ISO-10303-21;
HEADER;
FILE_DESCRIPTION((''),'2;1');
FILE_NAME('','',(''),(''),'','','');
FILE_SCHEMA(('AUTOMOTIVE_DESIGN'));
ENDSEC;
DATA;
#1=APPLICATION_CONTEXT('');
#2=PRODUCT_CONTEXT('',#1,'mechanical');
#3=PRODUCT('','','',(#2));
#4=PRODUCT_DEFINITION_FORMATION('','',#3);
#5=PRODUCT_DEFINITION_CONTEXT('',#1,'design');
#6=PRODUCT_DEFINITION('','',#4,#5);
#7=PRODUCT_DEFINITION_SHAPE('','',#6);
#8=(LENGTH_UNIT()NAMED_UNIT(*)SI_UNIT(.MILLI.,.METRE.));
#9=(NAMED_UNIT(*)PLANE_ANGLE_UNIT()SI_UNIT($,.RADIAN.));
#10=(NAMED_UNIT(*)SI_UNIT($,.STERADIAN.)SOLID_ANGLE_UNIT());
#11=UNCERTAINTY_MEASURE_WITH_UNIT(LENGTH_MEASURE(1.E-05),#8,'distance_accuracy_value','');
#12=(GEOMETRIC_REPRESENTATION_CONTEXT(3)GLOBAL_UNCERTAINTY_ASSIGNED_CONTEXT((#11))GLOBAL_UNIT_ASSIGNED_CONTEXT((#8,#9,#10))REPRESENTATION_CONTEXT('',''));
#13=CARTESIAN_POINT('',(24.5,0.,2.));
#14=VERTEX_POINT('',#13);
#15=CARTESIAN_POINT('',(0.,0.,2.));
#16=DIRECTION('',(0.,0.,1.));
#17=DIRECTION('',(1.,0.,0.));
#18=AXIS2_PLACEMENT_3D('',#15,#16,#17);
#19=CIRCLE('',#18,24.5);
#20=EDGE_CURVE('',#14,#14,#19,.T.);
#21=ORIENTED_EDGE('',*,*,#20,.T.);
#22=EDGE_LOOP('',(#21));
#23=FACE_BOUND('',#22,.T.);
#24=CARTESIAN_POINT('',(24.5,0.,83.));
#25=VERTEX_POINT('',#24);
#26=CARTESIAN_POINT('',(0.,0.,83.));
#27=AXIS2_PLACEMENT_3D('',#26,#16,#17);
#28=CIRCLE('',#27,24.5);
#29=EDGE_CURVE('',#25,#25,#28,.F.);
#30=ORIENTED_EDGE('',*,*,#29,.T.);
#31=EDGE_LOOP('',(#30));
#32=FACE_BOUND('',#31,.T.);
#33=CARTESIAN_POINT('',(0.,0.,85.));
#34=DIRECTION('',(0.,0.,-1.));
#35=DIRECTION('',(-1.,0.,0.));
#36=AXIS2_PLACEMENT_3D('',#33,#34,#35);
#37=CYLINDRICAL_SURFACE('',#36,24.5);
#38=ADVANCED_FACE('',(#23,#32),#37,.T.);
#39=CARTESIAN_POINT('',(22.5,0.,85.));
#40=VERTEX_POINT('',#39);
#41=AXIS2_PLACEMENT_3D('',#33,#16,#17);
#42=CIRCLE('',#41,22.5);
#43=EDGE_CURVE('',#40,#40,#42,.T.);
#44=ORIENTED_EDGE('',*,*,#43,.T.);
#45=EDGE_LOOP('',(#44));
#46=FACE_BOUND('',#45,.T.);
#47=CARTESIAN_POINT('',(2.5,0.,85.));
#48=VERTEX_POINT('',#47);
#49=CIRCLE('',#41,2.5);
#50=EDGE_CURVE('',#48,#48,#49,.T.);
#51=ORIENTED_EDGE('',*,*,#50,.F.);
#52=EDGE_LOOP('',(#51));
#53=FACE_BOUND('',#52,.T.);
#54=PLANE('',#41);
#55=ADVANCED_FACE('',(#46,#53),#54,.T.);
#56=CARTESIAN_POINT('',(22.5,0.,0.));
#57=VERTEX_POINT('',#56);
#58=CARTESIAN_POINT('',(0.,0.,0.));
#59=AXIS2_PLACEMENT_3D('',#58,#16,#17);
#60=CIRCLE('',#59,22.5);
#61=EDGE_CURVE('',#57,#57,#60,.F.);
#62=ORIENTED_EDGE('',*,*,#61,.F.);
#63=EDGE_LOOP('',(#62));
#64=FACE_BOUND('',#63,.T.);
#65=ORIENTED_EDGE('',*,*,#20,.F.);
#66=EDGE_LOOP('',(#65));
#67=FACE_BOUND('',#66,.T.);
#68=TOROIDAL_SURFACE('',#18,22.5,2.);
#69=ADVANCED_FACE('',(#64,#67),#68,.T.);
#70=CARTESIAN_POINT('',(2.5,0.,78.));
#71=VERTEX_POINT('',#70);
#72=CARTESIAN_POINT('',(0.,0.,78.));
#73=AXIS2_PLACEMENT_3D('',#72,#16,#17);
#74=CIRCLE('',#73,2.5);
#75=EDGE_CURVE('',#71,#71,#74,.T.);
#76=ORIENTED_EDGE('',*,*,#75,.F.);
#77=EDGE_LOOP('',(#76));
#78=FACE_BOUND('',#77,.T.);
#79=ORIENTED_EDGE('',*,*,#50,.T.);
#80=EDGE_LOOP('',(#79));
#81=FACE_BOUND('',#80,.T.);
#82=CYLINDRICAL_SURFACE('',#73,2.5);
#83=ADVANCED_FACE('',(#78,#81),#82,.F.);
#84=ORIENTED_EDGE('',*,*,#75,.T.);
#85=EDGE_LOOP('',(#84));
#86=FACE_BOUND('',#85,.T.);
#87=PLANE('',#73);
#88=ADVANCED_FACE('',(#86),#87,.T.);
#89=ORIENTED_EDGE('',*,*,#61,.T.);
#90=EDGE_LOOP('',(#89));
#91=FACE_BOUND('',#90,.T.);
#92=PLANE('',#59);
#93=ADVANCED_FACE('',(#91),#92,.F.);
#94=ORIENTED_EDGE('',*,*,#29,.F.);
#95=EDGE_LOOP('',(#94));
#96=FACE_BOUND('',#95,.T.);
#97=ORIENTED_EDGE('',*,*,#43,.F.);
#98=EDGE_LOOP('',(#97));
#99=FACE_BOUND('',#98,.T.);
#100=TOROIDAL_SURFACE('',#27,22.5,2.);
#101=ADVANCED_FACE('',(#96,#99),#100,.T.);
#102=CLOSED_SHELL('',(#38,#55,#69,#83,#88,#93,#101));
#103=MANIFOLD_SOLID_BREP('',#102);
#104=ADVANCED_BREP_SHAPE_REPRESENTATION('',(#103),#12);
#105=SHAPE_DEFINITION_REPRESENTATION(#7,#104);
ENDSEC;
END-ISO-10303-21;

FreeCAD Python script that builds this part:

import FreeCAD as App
import Part
import Sketcher
from FreeCAD import Vector
Q = App.Units.Quantity


def edges_at(feature, points):
    """Names of the edges that pass closest to the given points."""
    edges = feature.Shape.Edges
    near = lambda p: min(range(len(edges)), key=lambda i: edges[i].distToShape(Part.Vertex(*p))[0])
    return sorted({f"Edge{near(p) + 1}" for p in points})

doc = App.newDocument("Part")
body = doc.addObject("PartDesign::Body", "Body")

# Sketch on XY plane
sketch1 = body.newObject("Sketcher::SketchObject", "Sketch")
sketch1.AttachmentSupport = (doc.getObject("XY_Plane"), [""])
sketch1.MapMode = "FlatFace"
sketch1.addGeometry(Part.Circle(Vector(0, 0, 0), Vector(0, 0, 1), 24.5), False)
sketch1.addConstraint([
    Sketcher.Constraint("Coincident", 0, 3, -1, 1),
    Sketcher.Constraint("Diameter", 0, Q("49 mm")),
])
pad1 = body.newObject("PartDesign::Pad", "Pad")
pad1.Profile = sketch1
pad1.Length = 85
doc.recompute()

fillet = body.newObject("PartDesign::Fillet", "Fillet")
fillet.Base = (pad1, edges_at(pad1, [(-24.5, 0, 0), (-24.5, 0, 85)]))
fillet.Radius = 2

# Sketch on XY plane
sketch2 = body.newObject("Sketcher::SketchObject", "Sketch001")
sketch2.AttachmentSupport = (doc.getObject("XY_Plane"), [""])
sketch2.MapMode = "FlatFace"
sketch2.AttachmentOffset = App.Placement(Vector(0, 0, 85), App.Rotation())
sketch2.addGeometry(Part.Circle(Vector(0, 0, 0), Vector(0, 0, 1), 2.5), False)
sketch2.addConstraint([
    Sketcher.Constraint("Coincident", 0, 3, -1, 1),
    Sketcher.Constraint("Diameter", 0, Q("5 mm")),
])
pocket1 = body.newObject("PartDesign::Pocket", "Pocket")
pocket1.Profile = sketch2
pocket1.Length = 7

doc.recompute()
